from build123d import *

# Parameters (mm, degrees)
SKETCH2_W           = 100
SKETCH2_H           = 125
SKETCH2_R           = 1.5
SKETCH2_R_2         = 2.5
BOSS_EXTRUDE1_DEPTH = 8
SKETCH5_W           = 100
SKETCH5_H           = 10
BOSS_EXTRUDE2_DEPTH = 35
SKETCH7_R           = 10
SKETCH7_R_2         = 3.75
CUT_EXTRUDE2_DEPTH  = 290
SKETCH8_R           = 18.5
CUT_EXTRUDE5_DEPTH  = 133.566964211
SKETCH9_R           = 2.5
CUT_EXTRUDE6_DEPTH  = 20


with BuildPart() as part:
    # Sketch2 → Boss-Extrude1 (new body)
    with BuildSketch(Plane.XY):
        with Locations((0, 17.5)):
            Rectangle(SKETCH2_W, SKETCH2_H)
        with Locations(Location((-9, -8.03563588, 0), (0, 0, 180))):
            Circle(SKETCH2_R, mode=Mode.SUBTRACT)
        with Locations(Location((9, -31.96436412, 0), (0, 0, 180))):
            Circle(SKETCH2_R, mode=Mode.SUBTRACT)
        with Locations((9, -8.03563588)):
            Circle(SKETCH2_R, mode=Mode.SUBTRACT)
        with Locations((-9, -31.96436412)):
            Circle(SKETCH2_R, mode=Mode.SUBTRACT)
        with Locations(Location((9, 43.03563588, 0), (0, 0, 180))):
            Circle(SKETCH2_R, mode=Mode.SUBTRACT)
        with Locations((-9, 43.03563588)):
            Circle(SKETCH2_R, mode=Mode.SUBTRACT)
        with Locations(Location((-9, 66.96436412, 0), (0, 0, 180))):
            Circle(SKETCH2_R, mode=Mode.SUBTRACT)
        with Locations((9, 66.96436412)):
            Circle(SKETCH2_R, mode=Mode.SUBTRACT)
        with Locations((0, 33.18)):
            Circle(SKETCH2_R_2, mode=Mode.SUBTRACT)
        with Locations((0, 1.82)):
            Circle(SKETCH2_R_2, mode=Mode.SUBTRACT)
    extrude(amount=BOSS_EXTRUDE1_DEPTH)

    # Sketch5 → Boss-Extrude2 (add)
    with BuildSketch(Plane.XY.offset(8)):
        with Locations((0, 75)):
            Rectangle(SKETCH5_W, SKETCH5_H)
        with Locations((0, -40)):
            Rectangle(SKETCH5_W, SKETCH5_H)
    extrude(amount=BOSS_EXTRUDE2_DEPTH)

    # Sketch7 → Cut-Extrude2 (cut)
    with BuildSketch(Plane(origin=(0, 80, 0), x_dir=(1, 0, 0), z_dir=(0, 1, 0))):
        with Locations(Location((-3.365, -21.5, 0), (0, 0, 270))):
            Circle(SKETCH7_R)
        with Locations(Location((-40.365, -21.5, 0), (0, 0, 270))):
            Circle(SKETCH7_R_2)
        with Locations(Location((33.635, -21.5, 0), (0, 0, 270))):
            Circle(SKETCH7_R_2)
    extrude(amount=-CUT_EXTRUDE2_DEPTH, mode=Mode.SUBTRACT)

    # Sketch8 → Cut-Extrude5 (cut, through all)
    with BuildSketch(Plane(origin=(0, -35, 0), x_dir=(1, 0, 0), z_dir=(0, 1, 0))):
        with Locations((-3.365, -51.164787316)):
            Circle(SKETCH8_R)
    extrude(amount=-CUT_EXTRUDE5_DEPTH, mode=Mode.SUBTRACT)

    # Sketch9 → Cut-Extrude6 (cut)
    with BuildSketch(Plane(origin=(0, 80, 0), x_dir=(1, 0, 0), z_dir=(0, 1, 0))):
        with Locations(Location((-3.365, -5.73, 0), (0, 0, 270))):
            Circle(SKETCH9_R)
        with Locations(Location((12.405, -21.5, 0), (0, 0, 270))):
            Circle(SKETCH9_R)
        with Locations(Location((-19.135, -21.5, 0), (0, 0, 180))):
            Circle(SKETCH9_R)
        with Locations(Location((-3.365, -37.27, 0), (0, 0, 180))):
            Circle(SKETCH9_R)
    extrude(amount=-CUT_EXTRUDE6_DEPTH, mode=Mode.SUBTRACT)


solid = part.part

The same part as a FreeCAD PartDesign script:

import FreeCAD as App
import Part
import Sketcher
Q = App.Units.Quantity


def add_polygon(sketch, points):
    """Adds a closed chain of lines whose ends are joined by coincident constraints."""
    first, n = sketch.GeometryCount, len(points)
    for a, b in zip(points, points[1:] + points[:1]):
        sketch.addGeometry(Part.LineSegment(App.Vector(*a, 0), App.Vector(*b, 0)), False)
    for i in range(n):
        sketch.addConstraint(Sketcher.Constraint("Coincident", first + i, 2, first + (i + 1) % n, 1))

doc = App.newDocument("Part")
body = doc.addObject("PartDesign::Body", "Body")

sketch1 = body.newObject("Sketcher::SketchObject", "Sketch")
sketch1.AttachmentSupport = (doc.getObject("XY_Plane"), [""])
sketch1.MapMode = "FlatFace"
add_polygon(sketch1, [(-50, 80), (-50, -45), (50, -45), (50, 80)])
sketch1.addGeometry(Part.Circle(App.Vector(-9, -32, 0), App.Vector(0, 0, 1), 1.5), False)
sketch1.addGeometry(Part.Circle(App.Vector(-9, -8, 0), App.Vector(0, 0, 1), 1.5), False)
sketch1.addGeometry(Part.Circle(App.Vector(9, -32, 0), App.Vector(0, 0, 1), 1.5), False)
sketch1.addGeometry(Part.Circle(App.Vector(9, -8, 0), App.Vector(0, 0, 1), 1.5), False)
sketch1.addGeometry(Part.Circle(App.Vector(0, 1.8, 0), App.Vector(0, 0, 1), 2.5), False)
sketch1.addGeometry(Part.Circle(App.Vector(-9, 43, 0), App.Vector(0, 0, 1), 1.5), False)
sketch1.addGeometry(Part.Circle(App.Vector(-9, 67, 0), App.Vector(0, 0, 1), 1.5), False)
sketch1.addGeometry(Part.Circle(App.Vector(0, 33.2, 0), App.Vector(0, 0, 1), 2.5), False)
sketch1.addGeometry(Part.Circle(App.Vector(9, 43, 0), App.Vector(0, 0, 1), 1.5), False)
sketch1.addGeometry(Part.Circle(App.Vector(9, 67, 0), App.Vector(0, 0, 1), 1.5), False)
sketch1.addConstraint(Sketcher.Constraint("Vertical", 0))
sketch1.addConstraint(Sketcher.Constraint("Horizontal", 1))
sketch1.addConstraint(Sketcher.Constraint("Vertical", 2))
sketch1.addConstraint(Sketcher.Constraint("Horizontal", 3))
sketch1.addConstraint(Sketcher.Constraint("Equal", 4, 5))
sketch1.addConstraint(Sketcher.Constraint("Equal", 5, 6))
sketch1.addConstraint(Sketcher.Constraint("Equal", 6, 7))
sketch1.addConstraint(Sketcher.Constraint("Equal", 7, 9))
sketch1.addConstraint(Sketcher.Constraint("Equal", 9, 10))
sketch1.addConstraint(Sketcher.Constraint("Equal", 8, 11))
sketch1.addConstraint(Sketcher.Constraint("Equal", 10, 12))
sketch1.addConstraint(Sketcher.Constraint("Equal", 12, 13))
sketch1.addConstraint(Sketcher.Constraint("Symmetric", 4, 3, 6, 3, -2))
sketch1.addConstraint(Sketcher.Constraint("Symmetric", 5, 3, 7, 3, -2))
sketch1.addConstraint(Sketcher.Constraint("Symmetric", 9, 3, 12, 3, -2))
sketch1.addConstraint(Sketcher.Constraint("Symmetric", 10, 3, 13, 3, -2))
sketch1.addConstraint(Sketcher.Constraint("PointOnObject", 8, 3, -2))
sketch1.addConstraint(Sketcher.Constraint("PointOnObject", 11, 3, -2))
sketch1.addConstraint(Sketcher.Constraint("Vertical", 4, 3, 5, 3))
sketch1.addConstraint(Sketcher.Constraint("Vertical", 5, 3, 9, 3))
sketch1.addConstraint(Sketcher.Constraint("Vertical", 9, 3, 10, 3))
sketch1.addConstraint(Sketcher.Constraint("Diameter", 4, Q("3 mm")))
sketch1.addConstraint(Sketcher.Constraint("Diameter", 8, Q("5 mm")))
sketch1.addConstraint(Sketcher.Constraint("DistanceX", 1, 1, 1, 2, Q("100 mm")))
sketch1.addConstraint(Sketcher.Constraint("DistanceY", 0, 2, 0, 1, Q("125 mm")))
sketch1.addConstraint(Sketcher.Constraint("DistanceX", 4, 3, -1, 1, Q("9 mm")))
sketch1.addConstraint(Sketcher.Constraint("DistanceX", 0, 2, -1, 1, Q("50 mm")))
sketch1.addConstraint(Sketcher.Constraint("DistanceY", 0, 2, -1, 1, Q("45 mm")))
sketch1.addConstraint(Sketcher.Constraint("DistanceY", 4, 3, 9, 3, Q("75 mm")))
sketch1.addConstraint(Sketcher.Constraint("DistanceY", 5, 3, 10, 3, Q("75 mm")))
sketch1.addConstraint(Sketcher.Constraint("DistanceY", -1, 1, 8, 3, Q("1.82 mm")))
sketch1.addConstraint(Sketcher.Constraint("DistanceY", -1, 1, 11, 3, Q("33.18 mm")))
sketch1.addConstraint(Sketcher.Constraint("DistanceY", 4, 3, 5, 3, Q("23.928728 mm")))
sketch1.addConstraint(Sketcher.Constraint("DistanceY", 4, 3, -1, 1, Q("31.964364 mm")))
pad1 = body.newObject("PartDesign::Pad", "Pad")
pad1.Profile = sketch1
pad1.Length = 8

sketch2 = body.newObject("Sketcher::SketchObject", "Sketch001")
sketch2.AttachmentSupport = (doc.getObject("XY_Plane"), [""])
sketch2.MapMode = "FlatFace"
sketch2.AttachmentOffset = App.Placement(App.Vector(0, 0, 8), App.Rotation())
add_polygon(sketch2, [(-50, 80), (-50, 70), (50, 70), (50, 80)])
add_polygon(sketch2, [(-50, -35), (-50, -45), (50, -45), (50, -35)])
sketch2.addConstraint(Sketcher.Constraint("Vertical", 0))
sketch2.addConstraint(Sketcher.Constraint("Horizontal", 1))
sketch2.addConstraint(Sketcher.Constraint("Vertical", 2))
sketch2.addConstraint(Sketcher.Constraint("Horizontal", 3))
sketch2.addConstraint(Sketcher.Constraint("Vertical", 4))
sketch2.addConstraint(Sketcher.Constraint("Horizontal", 5))
sketch2.addConstraint(Sketcher.Constraint("Vertical", 6))
sketch2.addConstraint(Sketcher.Constraint("Horizontal", 7))
sketch2.addConstraint(Sketcher.Constraint("Vertical", 3, 2, 4, 2))
sketch2.addConstraint(Sketcher.Constraint("Vertical", 2, 2, 5, 2))
sketch2.addConstraint(Sketcher.Constraint("Equal", 2, 4))
sketch2.addConstraint(Sketcher.Constraint("DistanceX", 1, 1, 1, 2, Q("100 mm")))
sketch2.addConstraint(Sketcher.Constraint("DistanceY", 0, 2, 0, 1, Q("10 mm")))
sketch2.addConstraint(Sketcher.Constraint("DistanceX", 0, 2, -1, 1, Q("50 mm")))
sketch2.addConstraint(Sketcher.Constraint("DistanceY", -1, 1, 0, 2, Q("70 mm")))
sketch2.addConstraint(Sketcher.Constraint("DistanceY", 4, 2, -1, 1, Q("45 mm")))
pad2 = body.newObject("PartDesign::Pad", "Pad001")
pad2.Profile = sketch2
pad2.Length = 35

sketch3 = body.newObject("Sketcher::SketchObject", "Sketch002")
sketch3.AttachmentSupport = (doc.getObject("XZ_Plane"), [""])
sketch3.MapMode = "FlatFace"
sketch3.AttachmentOffset = App.Placement(App.Vector(0, 0, -80), App.Rotation())
sketch3.addGeometry(Part.Circle(App.Vector(-3.4, 21.5, 0), App.Vector(0, 0, 1), 10), False)
sketch3.addGeometry(Part.Circle(App.Vector(-40.4, 21.5, 0), App.Vector(0, 0, 1), 3.8), False)
sketch3.addGeometry(Part.Circle(App.Vector(33.6, 21.5, 0), App.Vector(0, 0, 1), 3.8), False)
sketch3.addConstraint(Sketcher.Constraint("Equal", 1, 2))
sketch3.addConstraint(Sketcher.Constraint("Horizontal", 0, 3, 1, 3))
sketch3.addConstraint(Sketcher.Constraint("Horizontal", 1, 3, 2, 3))
sketch3.addConstraint(Sketcher.Constraint("Diameter", 0, Q("20 mm")))
sketch3.addConstraint(Sketcher.Constraint("Diameter", 1, Q("7.5 mm")))
sketch3.addConstraint(Sketcher.Constraint("DistanceX", 1, 3, 0, 3, Q("37 mm")))
sketch3.addConstraint(Sketcher.Constraint("DistanceX", 0, 3, 2, 3, Q("37 mm")))
sketch3.addConstraint(Sketcher.Constraint("DistanceY", -1, 1, 0, 3, Q("21.5 mm")))
sketch3.addConstraint(Sketcher.Constraint("DistanceX", 0, 3, -1, 1, Q("3.365 mm")))
pocket1 = body.newObject("PartDesign::Pocket", "Pocket")
pocket1.Profile = sketch3
pocket1.Length = 290
pocket1.Reversed = True

sketch4 = body.newObject("Sketcher::SketchObject", "Sketch003")
sketch4.AttachmentSupport = (doc.getObject("XZ_Plane"), [""])
sketch4.MapMode = "FlatFace"
sketch4.AttachmentOffset = App.Placement(App.Vector(0, 0, 35), App.Rotation())
sketch4.addGeometry(Part.Circle(App.Vector(-3, 51, 0), App.Vector(0, 0, 1), 18), False)
sketch4.addConstraint(Sketcher.Constraint("Diameter", 0, Q("37 mm")))
sketch4.addConstraint(Sketcher.Constraint("DistanceX", 0, 3, -1, 1, Q("3.365 mm")))
sketch4.addConstraint(Sketcher.Constraint("DistanceY", -1, 1, 0, 3, Q("51.164787 mm")))
pocket2 = body.newObject("PartDesign::Pocket", "Pocket001")
pocket2.Profile = sketch4
pocket2.Type = "ThroughAll"
pocket2.Reversed = True

sketch5 = body.newObject("Sketcher::SketchObject", "Sketch004")
sketch5.AttachmentSupport = (doc.getObject("XZ_Plane"), [""])
sketch5.MapMode = "FlatFace"
sketch5.AttachmentOffset = App.Placement(App.Vector(0, 0, -80), App.Rotation())
sketch5.addGeometry(Part.Circle(App.Vector(-3.4, 5.7, 0), App.Vector(0, 0, 1), 2.5), False)
sketch5.addGeometry(Part.Circle(App.Vector(12.4, 21.5, 0), App.Vector(0, 0, 1), 2.5), False)
sketch5.addGeometry(Part.Circle(App.Vector(-19.1, 21.5, 0), App.Vector(0, 0, 1), 2.5), False)
sketch5.addGeometry(Part.Circle(App.Vector(-3.4, 37.3, 0), App.Vector(0, 0, 1), 2.5), False)
sketch5.addConstraint(Sketcher.Constraint("Equal", 0, 1))
sketch5.addConstraint(Sketcher.Constraint("Equal", 1, 2))
sketch5.addConstraint(Sketcher.Constraint("Equal", 2, 3))
sketch5.addConstraint(Sketcher.Constraint("Horizontal", 1, 3, 2, 3))
sketch5.addConstraint(Sketcher.Constraint("Vertical", 0, 3, 3, 3))
sketch5.addConstraint(Sketcher.Constraint("Diameter", 0, Q("5 mm")))
sketch5.addConstraint(Sketcher.Constraint("DistanceY", -1, 1, 1, 3, Q("21.5 mm")))
sketch5.addConstraint(Sketcher.Constraint("DistanceY", -1, 1, 0, 3, Q("5.73 mm")))
sketch5.addConstraint(Sketcher.Constraint("DistanceY", -1, 1, 3, 3, Q("37.27 mm")))
sketch5.addConstraint(Sketcher.Constraint("DistanceX", 0, 3, 1, 3, Q("15.77 mm")))
sketch5.addConstraint(Sketcher.Constraint("DistanceX", 2, 3, 0, 3, Q("15.77 mm")))
sketch5.addConstraint(Sketcher.Constraint("DistanceX", 0, 3, -1, 1, Q("3.365 mm")))
pocket3 = body.newObject("PartDesign::Pocket", "Pocket002")
pocket3.Profile = sketch5
pocket3.Length = 20
pocket3.Reversed = True

doc.recompute()
